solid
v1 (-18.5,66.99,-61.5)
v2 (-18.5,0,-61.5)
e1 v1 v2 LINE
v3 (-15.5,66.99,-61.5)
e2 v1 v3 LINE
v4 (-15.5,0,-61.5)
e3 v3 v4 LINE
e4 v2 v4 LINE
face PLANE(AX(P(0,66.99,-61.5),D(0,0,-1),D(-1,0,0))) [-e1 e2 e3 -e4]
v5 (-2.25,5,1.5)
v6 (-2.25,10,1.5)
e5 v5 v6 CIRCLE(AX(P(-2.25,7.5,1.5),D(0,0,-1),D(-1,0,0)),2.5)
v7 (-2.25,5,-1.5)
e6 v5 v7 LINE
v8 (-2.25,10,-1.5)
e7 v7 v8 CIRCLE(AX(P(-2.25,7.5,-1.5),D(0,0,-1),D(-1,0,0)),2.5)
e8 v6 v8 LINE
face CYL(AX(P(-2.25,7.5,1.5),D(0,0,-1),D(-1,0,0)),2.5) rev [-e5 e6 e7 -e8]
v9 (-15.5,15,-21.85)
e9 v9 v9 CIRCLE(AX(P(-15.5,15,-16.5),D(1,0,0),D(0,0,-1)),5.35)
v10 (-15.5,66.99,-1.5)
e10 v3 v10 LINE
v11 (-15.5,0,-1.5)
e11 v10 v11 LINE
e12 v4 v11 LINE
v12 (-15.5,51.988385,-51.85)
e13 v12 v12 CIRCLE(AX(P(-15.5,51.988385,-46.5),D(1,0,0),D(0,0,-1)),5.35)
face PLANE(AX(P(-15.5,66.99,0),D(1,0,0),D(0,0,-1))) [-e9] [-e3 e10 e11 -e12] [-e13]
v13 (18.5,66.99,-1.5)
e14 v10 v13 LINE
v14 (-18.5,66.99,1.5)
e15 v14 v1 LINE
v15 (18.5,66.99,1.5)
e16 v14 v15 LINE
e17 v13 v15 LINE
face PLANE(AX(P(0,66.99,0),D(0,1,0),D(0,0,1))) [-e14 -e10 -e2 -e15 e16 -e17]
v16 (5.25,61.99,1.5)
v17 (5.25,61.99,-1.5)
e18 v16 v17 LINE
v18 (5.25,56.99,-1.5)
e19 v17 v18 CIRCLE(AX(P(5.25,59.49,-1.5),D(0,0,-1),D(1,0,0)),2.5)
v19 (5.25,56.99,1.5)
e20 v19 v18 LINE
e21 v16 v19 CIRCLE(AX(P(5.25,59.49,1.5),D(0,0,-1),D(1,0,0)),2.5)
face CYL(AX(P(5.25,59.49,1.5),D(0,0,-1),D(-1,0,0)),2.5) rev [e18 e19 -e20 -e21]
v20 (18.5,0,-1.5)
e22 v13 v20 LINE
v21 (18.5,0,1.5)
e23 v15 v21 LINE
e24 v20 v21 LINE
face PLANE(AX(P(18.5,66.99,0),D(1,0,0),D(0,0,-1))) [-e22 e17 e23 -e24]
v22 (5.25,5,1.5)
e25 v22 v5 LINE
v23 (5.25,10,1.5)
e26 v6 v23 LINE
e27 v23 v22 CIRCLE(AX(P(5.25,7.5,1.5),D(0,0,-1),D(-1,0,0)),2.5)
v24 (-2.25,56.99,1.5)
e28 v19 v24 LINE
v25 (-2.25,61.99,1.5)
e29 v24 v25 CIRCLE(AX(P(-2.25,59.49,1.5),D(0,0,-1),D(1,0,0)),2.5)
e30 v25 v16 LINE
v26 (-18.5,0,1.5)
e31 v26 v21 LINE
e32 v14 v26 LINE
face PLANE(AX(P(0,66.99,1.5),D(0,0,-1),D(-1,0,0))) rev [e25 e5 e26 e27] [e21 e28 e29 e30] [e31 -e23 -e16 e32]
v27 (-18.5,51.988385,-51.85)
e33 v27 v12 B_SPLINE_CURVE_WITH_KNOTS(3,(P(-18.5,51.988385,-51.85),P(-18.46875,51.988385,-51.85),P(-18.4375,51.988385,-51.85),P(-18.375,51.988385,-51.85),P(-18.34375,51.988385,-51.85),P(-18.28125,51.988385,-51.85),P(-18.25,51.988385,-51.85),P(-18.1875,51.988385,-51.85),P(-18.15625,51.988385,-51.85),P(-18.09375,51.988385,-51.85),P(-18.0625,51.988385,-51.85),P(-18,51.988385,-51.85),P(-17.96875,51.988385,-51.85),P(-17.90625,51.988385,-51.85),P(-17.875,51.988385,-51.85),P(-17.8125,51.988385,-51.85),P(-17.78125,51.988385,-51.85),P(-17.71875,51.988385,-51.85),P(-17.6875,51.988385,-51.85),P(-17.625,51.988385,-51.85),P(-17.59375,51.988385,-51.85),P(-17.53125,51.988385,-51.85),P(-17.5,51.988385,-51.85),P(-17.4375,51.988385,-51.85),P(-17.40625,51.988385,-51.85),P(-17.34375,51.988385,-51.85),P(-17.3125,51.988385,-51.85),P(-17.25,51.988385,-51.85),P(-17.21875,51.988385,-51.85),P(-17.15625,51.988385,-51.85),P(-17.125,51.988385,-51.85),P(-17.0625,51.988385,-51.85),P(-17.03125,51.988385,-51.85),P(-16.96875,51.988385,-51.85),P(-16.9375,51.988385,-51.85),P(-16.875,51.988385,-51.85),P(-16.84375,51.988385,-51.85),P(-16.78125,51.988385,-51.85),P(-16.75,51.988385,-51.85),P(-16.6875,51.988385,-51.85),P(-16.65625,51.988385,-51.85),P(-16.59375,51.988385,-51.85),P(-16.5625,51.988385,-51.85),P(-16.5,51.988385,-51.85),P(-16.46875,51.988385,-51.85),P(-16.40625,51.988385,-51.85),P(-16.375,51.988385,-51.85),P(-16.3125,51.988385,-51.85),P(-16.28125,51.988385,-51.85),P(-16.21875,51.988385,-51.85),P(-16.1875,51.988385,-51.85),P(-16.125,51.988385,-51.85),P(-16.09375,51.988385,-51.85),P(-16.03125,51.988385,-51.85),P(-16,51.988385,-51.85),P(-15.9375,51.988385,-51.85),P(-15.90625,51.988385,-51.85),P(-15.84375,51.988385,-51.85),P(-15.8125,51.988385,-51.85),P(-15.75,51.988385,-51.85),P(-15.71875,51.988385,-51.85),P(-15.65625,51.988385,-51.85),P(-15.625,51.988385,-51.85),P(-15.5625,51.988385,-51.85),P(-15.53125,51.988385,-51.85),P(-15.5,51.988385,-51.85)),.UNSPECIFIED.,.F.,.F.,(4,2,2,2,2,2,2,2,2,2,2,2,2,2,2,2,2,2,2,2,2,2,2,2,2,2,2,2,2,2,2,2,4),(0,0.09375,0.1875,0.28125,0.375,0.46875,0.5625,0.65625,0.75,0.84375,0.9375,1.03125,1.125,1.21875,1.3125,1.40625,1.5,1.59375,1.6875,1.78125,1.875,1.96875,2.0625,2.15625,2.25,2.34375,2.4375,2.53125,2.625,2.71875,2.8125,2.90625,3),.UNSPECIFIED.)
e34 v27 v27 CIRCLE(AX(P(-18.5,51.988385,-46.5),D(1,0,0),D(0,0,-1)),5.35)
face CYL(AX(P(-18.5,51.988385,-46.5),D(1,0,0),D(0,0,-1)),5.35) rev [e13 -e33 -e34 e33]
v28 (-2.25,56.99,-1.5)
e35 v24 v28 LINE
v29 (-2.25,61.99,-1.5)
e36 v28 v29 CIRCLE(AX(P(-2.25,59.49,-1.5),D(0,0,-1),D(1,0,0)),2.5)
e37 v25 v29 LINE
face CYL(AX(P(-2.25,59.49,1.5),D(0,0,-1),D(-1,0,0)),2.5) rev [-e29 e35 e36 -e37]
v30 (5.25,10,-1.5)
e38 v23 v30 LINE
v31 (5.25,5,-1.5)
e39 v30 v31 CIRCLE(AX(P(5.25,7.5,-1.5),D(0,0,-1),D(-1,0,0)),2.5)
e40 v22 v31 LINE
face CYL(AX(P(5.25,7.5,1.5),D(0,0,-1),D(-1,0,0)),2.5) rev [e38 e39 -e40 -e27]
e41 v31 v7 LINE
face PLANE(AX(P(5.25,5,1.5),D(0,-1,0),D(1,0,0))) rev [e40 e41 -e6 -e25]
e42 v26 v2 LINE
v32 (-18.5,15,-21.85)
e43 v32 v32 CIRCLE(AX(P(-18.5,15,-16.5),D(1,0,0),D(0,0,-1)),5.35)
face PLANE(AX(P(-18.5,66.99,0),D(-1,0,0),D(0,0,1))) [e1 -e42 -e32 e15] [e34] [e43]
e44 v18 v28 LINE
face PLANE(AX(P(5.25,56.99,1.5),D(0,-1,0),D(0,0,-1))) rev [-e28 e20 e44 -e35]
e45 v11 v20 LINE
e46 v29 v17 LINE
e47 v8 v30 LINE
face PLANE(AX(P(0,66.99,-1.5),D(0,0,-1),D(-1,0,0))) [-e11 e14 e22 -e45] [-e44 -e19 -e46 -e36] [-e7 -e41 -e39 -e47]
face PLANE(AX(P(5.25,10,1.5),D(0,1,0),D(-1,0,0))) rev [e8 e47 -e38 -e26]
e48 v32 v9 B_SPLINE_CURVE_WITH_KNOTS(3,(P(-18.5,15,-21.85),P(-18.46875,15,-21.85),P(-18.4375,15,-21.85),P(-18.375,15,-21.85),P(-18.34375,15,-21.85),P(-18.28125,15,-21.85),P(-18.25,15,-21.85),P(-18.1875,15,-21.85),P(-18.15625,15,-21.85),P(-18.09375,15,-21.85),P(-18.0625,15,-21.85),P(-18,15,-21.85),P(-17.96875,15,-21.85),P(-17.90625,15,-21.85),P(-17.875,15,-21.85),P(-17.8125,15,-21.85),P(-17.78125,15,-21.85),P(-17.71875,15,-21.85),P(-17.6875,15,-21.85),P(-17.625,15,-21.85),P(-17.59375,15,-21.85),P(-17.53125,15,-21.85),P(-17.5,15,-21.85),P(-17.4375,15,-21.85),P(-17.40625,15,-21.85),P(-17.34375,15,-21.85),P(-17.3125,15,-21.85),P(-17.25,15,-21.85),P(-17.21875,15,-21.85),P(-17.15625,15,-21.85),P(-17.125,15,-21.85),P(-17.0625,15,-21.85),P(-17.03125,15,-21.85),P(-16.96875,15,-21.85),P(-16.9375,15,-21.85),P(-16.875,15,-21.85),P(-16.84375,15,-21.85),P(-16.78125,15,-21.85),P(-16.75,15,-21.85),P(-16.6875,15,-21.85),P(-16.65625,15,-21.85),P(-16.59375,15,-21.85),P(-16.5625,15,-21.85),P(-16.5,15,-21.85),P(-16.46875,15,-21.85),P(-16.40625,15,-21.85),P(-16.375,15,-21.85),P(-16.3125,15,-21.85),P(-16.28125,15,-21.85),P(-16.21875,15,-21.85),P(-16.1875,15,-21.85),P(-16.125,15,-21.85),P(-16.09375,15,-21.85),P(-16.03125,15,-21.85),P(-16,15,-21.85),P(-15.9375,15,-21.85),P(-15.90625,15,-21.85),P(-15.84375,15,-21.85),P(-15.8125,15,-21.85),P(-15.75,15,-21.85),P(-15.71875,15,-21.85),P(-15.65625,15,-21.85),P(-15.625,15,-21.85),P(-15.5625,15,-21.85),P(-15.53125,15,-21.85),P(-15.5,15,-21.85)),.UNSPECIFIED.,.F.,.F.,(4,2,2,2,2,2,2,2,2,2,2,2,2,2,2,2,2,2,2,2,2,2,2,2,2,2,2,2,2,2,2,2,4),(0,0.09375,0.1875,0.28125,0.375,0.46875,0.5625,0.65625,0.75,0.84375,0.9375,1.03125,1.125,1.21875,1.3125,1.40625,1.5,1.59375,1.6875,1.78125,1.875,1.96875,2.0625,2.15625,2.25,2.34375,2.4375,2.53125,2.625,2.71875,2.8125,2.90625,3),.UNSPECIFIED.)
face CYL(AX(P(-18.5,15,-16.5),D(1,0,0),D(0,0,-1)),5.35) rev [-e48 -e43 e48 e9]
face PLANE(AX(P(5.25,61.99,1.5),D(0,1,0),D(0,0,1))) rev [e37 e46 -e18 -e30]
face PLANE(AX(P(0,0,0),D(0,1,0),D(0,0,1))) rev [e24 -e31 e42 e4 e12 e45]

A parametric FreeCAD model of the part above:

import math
import FreeCAD as App
import Part
import Sketcher
from FreeCAD import Vector

doc = App.newDocument("Part")
params = doc.addObject("Spreadsheet::Sheet", "Params")
for row, (alias, value) in enumerate([
    ("sketch1_width", "37 mm"),
    ("sketch1_width2", "34 mm"),
    ("sketch1_height", "63 mm"),
    ("pad1_length", "66.99 mm"),
    ("sketch2_diameter", "10.7 mm"),
    ("sketch3_radius", "2.5 mm"),
    ("sketch3_width", "7.5 mm"),
], start=1):
    params.set(f"A{row}", alias)
    params.set(f"B{row}", "=" + value)
    params.setAlias(f"B{row}", alias)

body = doc.addObject("PartDesign::Body", "Body")

# Sketch on XZ plane
sketch1 = body.newObject("Sketcher::SketchObject", "Sketch")
sketch1.AttachmentSupport = (doc.getObject("XZ_Plane"), [""])
sketch1.MapMode = "FlatFace"
sketch1.addGeometry([
    Part.LineSegment(Vector(-18.5, -61.5, 0), Vector(-18.5, 1.5, 0)),  # 0
    Part.LineSegment(Vector(-18.5, 1.5, 0), Vector(18.5, 1.5, 0)),  # 1
    Part.LineSegment(Vector(18.5, 1.5, 0), Vector(18.5, -1.5, 0)),  # 2
    Part.LineSegment(Vector(18.5, -1.5, 0), Vector(-15.5, -1.5, 0)),  # 3
    Part.LineSegment(Vector(-15.5, -1.5, 0), Vector(-15.5, -61.5, 0)),  # 4
    Part.LineSegment(Vector(-15.5, -61.5, 0), Vector(-18.5, -61.5, 0)),  # 5
], False)
sketch1.addConstraint([
    Sketcher.Constraint("Coincident", 0, 2, 1, 1),
    Sketcher.Constraint("Coincident", 1, 2, 2, 1),
    Sketcher.Constraint("Coincident", 2, 2, 3, 1),
    Sketcher.Constraint("Coincident", 3, 2, 4, 1),
    Sketcher.Constraint("Coincident", 4, 2, 5, 1),
    Sketcher.Constraint("Coincident", 5, 2, 0, 1),
    Sketcher.Constraint("Vertical", 0),
    Sketcher.Constraint("Horizontal", 1),
    Sketcher.Constraint("Vertical", 2),
    Sketcher.Constraint("Horizontal", 3),
    Sketcher.Constraint("Vertical", 4),
    Sketcher.Constraint("Horizontal", 5),
    Sketcher.Constraint("Symmetric", 0, 2, 2, 2, -1, 1),
    Sketcher.Constraint("Equal", 5, 2),
    Sketcher.Constraint("DistanceX", 1, 1, 1, 2, 37.0),
    Sketcher.Constraint("DistanceX", 3, 2, 3, 1, 34.0),
    Sketcher.Constraint("DistanceY", 0, 1, 0, 2, 63.0),
])
sketch1.setExpression("Constraints[14]", "Params.sketch1_width")
sketch1.setExpression("Constraints[15]", "Params.sketch1_width2")
sketch1.setExpression("Constraints[16]", "Params.sketch1_height")
pad1 = body.newObject("PartDesign::Pad", "Pad")
pad1.Profile = sketch1
pad1.setExpression("Length", "Params.pad1_length")
pad1.Reversed = True

# Sketch on YZ plane
sketch2 = body.newObject("Sketcher::SketchObject", "Sketch001")
sketch2.AttachmentSupport = (doc.getObject("YZ_Plane"), [""])
sketch2.MapMode = "FlatFace"
sketch2.AttachmentOffset = App.Placement(Vector(0, 0, -15.5), App.Rotation())
sketch2.addGeometry([
    Part.Circle(Vector(15, -16.5, 0), Vector(0, 0, 1), 5.35),
    Part.Circle(Vector(51.988385, -46.5, 0), Vector(0, 0, 1), 5.35),
], False)
sketch2.addConstraint([
    Sketcher.Constraint("Equal", 0, 1),
    Sketcher.Constraint("Diameter", 0, 10.7),
    Sketcher.Constraint("DistanceX", -1, 1, 0, 3, 15.0),
    Sketcher.Constraint("DistanceY", 1, 3, 0, 3, 30.0),
    Sketcher.Constraint("DistanceY", 0, 3, -1, 1, 16.5),
    Sketcher.Constraint("DistanceX", -1, 1, 1, 3, 51.988385),
])
sketch2.setExpression("Constraints[1]", "Params.sketch2_diameter")
pocket1 = body.newObject("PartDesign::Pocket", "Pocket")
pocket1.Profile = sketch2
pocket1.Type = "ThroughAll"

# Sketch on XY plane
sketch3 = body.newObject("Sketcher::SketchObject", "Sketch002")
sketch3.AttachmentSupport = (doc.getObject("XY_Plane"), [""])
sketch3.MapMode = "FlatFace"
sketch3.AttachmentOffset = App.Placement(Vector(0, 0, -1.5), App.Rotation())
sketch3.addGeometry([
    Part.LineSegment(Vector(-2.25, 10, 0), Vector(5.25, 10, 0)),  # 0
    Part.ArcOfCircle(Part.Circle(Vector(5.25, 7.5, 0), Vector(0, 0, 1), 2.5), math.radians(-90), math.radians(90)),  # 1
    Part.LineSegment(Vector(5.25, 5, 0), Vector(-2.25, 5, 0)),  # 2
    Part.ArcOfCircle(Part.Circle(Vector(-2.25, 7.5, 0), Vector(0, 0, 1), 2.5), math.radians(90), math.radians(270)),  # 3
    Part.LineSegment(Vector(5.25, 56.99, 0), Vector(-2.25, 56.99, 0)),  # 4
    Part.ArcOfCircle(Part.Circle(Vector(-2.25, 59.49, 0), Vector(0, 0, 1), 2.5), math.radians(90), math.radians(270)),  # 5
    Part.LineSegment(Vector(-2.25, 61.99, 0), Vector(5.25, 61.99, 0)),  # 6
    Part.ArcOfCircle(Part.Circle(Vector(5.25, 59.49, 0), Vector(0, 0, 1), 2.5), math.radians(-90), math.radians(90)),  # 7
], False)
sketch3.addConstraint([
    Sketcher.Constraint("Tangent", 0, 2, 1, 2),
    Sketcher.Constraint("Tangent", 1, 1, 2, 1),
    Sketcher.Constraint("Tangent", 2, 2, 3, 2),
    Sketcher.Constraint("Tangent", 3, 1, 0, 1),
    Sketcher.Constraint("Tangent", 4, 2, 5, 2),
    Sketcher.Constraint("Tangent", 5, 1, 6, 1),
    Sketcher.Constraint("Tangent", 6, 2, 7, 2),
    Sketcher.Constraint("Tangent", 7, 1, 4, 1),
    Sketcher.Constraint("Horizontal", 0),
    Sketcher.Constraint("Horizontal", 2),
    Sketcher.Constraint("Horizontal", 4),
    Sketcher.Constraint("Horizontal", 6),
    Sketcher.Constraint("Equal", 3, 5),
    Sketcher.Constraint("Vertical", 3, 3, 5, 3),
    Sketcher.Constraint("Vertical", 1, 3, 7, 3),
    Sketcher.Constraint("Radius", 1, 2.5),
    Sketcher.Constraint("DistanceX", 0, 1, 0, 2, 7.5),
    Sketcher.Constraint("DistanceY", -1, 1, 0, 2, 10.0),
    Sketcher.Constraint("DistanceX", -1, 1, 1, 3, 5.25),
    Sketcher.Constraint("DistanceY", -1, 1, 5, 3, 59.49),
])
sketch3.setExpression("Constraints[15]", "Params.sketch3_radius")
sketch3.setExpression("Constraints[16]", "Params.sketch3_width")
pocket2 = body.newObject("PartDesign::Pocket", "Pocket001")
pocket2.Profile = sketch3
pocket2.Type = "ThroughAll"
pocket2.Reversed = True

doc.recompute()
